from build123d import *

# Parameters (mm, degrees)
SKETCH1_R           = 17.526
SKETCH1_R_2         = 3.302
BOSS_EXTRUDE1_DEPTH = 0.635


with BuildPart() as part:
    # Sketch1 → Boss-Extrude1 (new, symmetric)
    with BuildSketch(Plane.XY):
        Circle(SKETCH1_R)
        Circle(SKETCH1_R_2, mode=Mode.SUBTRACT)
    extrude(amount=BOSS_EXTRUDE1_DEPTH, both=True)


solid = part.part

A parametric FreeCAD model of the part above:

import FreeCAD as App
import Part
import Sketcher

V = App.Vector
Q = App.Units.Quantity

doc = App.newDocument("Part")
body = doc.addObject("PartDesign::Body", "Body")

# Sketch on XY plane
sketch1 = doc.addObject("Sketcher::SketchObject", "Sketch")
body.addObject(sketch1)
sketch1.AttachmentSupport = (doc.XY_Plane, [""])
sketch1.MapMode = "FlatFace"
sketch1.addGeometry([
    Part.Circle(V(0, 0, 0), V(0, 0, 1), 17.526),
    Part.Circle(V(0, 0, 0), V(0, 0, 1), 3.302),
], False)
sketch1.addConstraint([
    Sketcher.Constraint("Coincident", 0, 3, -1, 1),
    Sketcher.Constraint("Coincident", 1, 3, -1, 1),
    Sketcher.Constraint("Diameter", 0, Q("1.38 in")),
    Sketcher.Constraint("Diameter", 1, Q("0.26 in")),
])
pad1 = doc.addObject("PartDesign::Pad", "Pad")
body.addObject(pad1)
pad1.Profile = sketch1
pad1.Length = Q("0.05 in")
pad1.Midplane = True

doc.recompute()
